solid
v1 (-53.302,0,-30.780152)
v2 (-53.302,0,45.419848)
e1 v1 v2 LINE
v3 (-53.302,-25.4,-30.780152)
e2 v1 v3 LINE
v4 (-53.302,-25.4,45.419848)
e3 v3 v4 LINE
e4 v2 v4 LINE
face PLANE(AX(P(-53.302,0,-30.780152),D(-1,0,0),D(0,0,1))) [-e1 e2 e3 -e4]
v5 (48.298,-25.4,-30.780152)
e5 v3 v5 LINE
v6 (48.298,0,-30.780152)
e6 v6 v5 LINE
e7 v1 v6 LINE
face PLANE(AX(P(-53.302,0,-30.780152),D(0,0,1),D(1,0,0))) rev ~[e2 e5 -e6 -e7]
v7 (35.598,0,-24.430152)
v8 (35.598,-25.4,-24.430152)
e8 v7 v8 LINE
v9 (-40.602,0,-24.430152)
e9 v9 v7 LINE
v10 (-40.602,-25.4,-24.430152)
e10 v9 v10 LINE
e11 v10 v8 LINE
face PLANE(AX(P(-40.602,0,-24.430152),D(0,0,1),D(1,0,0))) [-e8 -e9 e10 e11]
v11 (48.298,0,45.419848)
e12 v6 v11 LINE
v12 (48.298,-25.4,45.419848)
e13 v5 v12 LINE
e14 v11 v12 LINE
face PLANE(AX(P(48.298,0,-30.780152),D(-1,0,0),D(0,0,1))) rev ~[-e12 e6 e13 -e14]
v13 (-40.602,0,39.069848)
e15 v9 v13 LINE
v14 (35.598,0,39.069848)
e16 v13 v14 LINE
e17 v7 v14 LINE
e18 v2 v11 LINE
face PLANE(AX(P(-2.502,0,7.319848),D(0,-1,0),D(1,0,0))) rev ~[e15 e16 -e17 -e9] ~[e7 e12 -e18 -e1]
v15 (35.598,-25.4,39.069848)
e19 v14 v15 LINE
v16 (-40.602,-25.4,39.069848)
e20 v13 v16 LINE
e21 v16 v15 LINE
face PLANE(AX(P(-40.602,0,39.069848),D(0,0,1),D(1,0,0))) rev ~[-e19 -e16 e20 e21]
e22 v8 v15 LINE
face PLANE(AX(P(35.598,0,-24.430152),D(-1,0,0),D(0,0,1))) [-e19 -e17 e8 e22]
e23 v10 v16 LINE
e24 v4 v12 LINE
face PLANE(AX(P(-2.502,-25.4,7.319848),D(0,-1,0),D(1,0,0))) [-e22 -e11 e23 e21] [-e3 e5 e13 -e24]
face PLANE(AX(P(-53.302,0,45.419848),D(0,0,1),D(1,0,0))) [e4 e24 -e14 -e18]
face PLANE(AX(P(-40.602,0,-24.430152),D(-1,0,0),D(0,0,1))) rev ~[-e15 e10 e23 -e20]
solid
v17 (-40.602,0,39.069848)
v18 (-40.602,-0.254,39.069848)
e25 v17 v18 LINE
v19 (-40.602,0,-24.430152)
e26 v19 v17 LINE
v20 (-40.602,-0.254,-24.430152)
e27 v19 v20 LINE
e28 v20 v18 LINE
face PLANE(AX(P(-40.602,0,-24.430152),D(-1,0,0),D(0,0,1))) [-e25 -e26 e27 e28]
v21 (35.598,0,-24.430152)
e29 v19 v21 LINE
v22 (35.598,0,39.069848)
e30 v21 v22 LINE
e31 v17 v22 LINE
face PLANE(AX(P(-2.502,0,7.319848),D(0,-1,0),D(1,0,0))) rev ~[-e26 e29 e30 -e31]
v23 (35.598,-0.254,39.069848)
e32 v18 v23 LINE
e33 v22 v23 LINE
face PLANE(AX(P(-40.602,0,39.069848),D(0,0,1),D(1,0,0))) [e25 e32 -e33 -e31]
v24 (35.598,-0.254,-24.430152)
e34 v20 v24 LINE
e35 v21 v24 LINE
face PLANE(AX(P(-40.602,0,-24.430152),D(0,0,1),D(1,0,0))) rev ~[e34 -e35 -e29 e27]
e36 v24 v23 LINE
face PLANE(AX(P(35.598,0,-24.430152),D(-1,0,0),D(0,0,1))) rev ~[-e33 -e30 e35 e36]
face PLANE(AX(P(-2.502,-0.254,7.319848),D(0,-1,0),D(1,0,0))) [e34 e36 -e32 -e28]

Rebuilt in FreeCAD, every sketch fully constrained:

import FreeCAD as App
import Part
import Sketcher

V = App.Vector
Q = App.Units.Quantity


def add_polygon(sketch, points):
    """Adds a closed chain of lines whose ends are joined by coincident constraints."""
    first, n = sketch.GeometryCount, len(points)
    for a, b in zip(points, points[1:] + points[:1]):
        sketch.addGeometry(Part.LineSegment(App.Vector(*a, 0), App.Vector(*b, 0)), False)
    for i in range(n):
        sketch.addConstraint(Sketcher.Constraint("Coincident", first + i, 2, first + (i + 1) % n, 1))

doc = App.newDocument("Part")
body = doc.addObject("PartDesign::Body", "Body")

# Sketch on XZ plane
sketch1 = body.newObject("Sketcher::SketchObject", "Sketch")
sketch1.AttachmentSupport = (doc.getObject("XZ_Plane"), [""])
sketch1.MapMode = "FlatFace"
add_polygon(sketch1, [(-53.302, 45.419848), (-53.302, -30.780152), (48.298, -30.780152), (48.298, 45.419848)])  # lines 0-3
add_polygon(sketch1, [(35.598, -24.430152), (-40.602, -24.430152), (-40.602, 39.069848), (35.598, 39.069848)])  # lines 4-7
sketch1.addConstraint(Sketcher.Constraint("Vertical", 0))
sketch1.addConstraint(Sketcher.Constraint("Horizontal", 1))
sketch1.addConstraint(Sketcher.Constraint("Vertical", 2))
sketch1.addConstraint(Sketcher.Constraint("Horizontal", 3))
sketch1.addConstraint(Sketcher.Constraint("Horizontal", 4))
sketch1.addConstraint(Sketcher.Constraint("Vertical", 5))
sketch1.addConstraint(Sketcher.Constraint("Horizontal", 6))
sketch1.addConstraint(Sketcher.Constraint("Vertical", 7))
sketch1.addConstraint(Sketcher.Constraint("Equal", 6, 0))
sketch1.addConstraint(Sketcher.Constraint("DistanceX", 1, 1, 1, 2, Q("4 in")))
sketch1.addConstraint(Sketcher.Constraint("DistanceX", 4, 2, 4, 1, Q("3 in")))
sketch1.addConstraint(Sketcher.Constraint("DistanceY", 5, 1, 5, 2, Q("2.5 in")))
sketch1.addConstraint(Sketcher.Constraint("DistanceX", 0, 2, 4, 2, Q("0.5 in")))
sketch1.addConstraint(Sketcher.Constraint("DistanceY", 0, 2, 4, 2, Q("0.25 in")))
sketch1.addConstraint(Sketcher.Constraint("DistanceX", 0, 2, -1, 1, Q("53.302 mm")))
sketch1.addConstraint(Sketcher.Constraint("DistanceY", -1, 1, 2, 2, Q("45.419848 mm")))
pad1 = body.newObject("PartDesign::Pad", "Pad")
pad1.Profile = sketch1
pad1.Length = Q("1 in")
body2 = doc.addObject("PartDesign::Body", "Body001")

# Sketch on XZ plane
sketch2 = body2.newObject("Sketcher::SketchObject", "Sketch001")
sketch2.AttachmentSupport = (doc.getObject("XZ_Plane001"), [""])
sketch2.MapMode = "FlatFace"
add_polygon(sketch2, [(-40.602, 39.069848), (-40.602, -24.430152), (35.598, -24.430152), (35.598, 39.069848)])  # lines 0-3
sketch2.addConstraint(Sketcher.Constraint("Vertical", 0))
sketch2.addConstraint(Sketcher.Constraint("Horizontal", 1))
sketch2.addConstraint(Sketcher.Constraint("Vertical", 2))
sketch2.addConstraint(Sketcher.Constraint("Horizontal", 3))
sketch2.addConstraint(Sketcher.Constraint("DistanceX", 1, 1, 1, 2, Q("3 in")))
sketch2.addConstraint(Sketcher.Constraint("DistanceY", 0, 2, 0, 1, Q("2.5 in")))
sketch2.addConstraint(Sketcher.Constraint("DistanceX", 0, 2, -1, 1, Q("40.602 mm")))
sketch2.addConstraint(Sketcher.Constraint("DistanceY", 0, 2, -1, 1, Q("24.430152 mm")))
pad2 = body2.newObject("PartDesign::Pad", "Pad001")
pad2.Profile = sketch2
pad2.Length = Q("0.01 in")

doc.recompute()
